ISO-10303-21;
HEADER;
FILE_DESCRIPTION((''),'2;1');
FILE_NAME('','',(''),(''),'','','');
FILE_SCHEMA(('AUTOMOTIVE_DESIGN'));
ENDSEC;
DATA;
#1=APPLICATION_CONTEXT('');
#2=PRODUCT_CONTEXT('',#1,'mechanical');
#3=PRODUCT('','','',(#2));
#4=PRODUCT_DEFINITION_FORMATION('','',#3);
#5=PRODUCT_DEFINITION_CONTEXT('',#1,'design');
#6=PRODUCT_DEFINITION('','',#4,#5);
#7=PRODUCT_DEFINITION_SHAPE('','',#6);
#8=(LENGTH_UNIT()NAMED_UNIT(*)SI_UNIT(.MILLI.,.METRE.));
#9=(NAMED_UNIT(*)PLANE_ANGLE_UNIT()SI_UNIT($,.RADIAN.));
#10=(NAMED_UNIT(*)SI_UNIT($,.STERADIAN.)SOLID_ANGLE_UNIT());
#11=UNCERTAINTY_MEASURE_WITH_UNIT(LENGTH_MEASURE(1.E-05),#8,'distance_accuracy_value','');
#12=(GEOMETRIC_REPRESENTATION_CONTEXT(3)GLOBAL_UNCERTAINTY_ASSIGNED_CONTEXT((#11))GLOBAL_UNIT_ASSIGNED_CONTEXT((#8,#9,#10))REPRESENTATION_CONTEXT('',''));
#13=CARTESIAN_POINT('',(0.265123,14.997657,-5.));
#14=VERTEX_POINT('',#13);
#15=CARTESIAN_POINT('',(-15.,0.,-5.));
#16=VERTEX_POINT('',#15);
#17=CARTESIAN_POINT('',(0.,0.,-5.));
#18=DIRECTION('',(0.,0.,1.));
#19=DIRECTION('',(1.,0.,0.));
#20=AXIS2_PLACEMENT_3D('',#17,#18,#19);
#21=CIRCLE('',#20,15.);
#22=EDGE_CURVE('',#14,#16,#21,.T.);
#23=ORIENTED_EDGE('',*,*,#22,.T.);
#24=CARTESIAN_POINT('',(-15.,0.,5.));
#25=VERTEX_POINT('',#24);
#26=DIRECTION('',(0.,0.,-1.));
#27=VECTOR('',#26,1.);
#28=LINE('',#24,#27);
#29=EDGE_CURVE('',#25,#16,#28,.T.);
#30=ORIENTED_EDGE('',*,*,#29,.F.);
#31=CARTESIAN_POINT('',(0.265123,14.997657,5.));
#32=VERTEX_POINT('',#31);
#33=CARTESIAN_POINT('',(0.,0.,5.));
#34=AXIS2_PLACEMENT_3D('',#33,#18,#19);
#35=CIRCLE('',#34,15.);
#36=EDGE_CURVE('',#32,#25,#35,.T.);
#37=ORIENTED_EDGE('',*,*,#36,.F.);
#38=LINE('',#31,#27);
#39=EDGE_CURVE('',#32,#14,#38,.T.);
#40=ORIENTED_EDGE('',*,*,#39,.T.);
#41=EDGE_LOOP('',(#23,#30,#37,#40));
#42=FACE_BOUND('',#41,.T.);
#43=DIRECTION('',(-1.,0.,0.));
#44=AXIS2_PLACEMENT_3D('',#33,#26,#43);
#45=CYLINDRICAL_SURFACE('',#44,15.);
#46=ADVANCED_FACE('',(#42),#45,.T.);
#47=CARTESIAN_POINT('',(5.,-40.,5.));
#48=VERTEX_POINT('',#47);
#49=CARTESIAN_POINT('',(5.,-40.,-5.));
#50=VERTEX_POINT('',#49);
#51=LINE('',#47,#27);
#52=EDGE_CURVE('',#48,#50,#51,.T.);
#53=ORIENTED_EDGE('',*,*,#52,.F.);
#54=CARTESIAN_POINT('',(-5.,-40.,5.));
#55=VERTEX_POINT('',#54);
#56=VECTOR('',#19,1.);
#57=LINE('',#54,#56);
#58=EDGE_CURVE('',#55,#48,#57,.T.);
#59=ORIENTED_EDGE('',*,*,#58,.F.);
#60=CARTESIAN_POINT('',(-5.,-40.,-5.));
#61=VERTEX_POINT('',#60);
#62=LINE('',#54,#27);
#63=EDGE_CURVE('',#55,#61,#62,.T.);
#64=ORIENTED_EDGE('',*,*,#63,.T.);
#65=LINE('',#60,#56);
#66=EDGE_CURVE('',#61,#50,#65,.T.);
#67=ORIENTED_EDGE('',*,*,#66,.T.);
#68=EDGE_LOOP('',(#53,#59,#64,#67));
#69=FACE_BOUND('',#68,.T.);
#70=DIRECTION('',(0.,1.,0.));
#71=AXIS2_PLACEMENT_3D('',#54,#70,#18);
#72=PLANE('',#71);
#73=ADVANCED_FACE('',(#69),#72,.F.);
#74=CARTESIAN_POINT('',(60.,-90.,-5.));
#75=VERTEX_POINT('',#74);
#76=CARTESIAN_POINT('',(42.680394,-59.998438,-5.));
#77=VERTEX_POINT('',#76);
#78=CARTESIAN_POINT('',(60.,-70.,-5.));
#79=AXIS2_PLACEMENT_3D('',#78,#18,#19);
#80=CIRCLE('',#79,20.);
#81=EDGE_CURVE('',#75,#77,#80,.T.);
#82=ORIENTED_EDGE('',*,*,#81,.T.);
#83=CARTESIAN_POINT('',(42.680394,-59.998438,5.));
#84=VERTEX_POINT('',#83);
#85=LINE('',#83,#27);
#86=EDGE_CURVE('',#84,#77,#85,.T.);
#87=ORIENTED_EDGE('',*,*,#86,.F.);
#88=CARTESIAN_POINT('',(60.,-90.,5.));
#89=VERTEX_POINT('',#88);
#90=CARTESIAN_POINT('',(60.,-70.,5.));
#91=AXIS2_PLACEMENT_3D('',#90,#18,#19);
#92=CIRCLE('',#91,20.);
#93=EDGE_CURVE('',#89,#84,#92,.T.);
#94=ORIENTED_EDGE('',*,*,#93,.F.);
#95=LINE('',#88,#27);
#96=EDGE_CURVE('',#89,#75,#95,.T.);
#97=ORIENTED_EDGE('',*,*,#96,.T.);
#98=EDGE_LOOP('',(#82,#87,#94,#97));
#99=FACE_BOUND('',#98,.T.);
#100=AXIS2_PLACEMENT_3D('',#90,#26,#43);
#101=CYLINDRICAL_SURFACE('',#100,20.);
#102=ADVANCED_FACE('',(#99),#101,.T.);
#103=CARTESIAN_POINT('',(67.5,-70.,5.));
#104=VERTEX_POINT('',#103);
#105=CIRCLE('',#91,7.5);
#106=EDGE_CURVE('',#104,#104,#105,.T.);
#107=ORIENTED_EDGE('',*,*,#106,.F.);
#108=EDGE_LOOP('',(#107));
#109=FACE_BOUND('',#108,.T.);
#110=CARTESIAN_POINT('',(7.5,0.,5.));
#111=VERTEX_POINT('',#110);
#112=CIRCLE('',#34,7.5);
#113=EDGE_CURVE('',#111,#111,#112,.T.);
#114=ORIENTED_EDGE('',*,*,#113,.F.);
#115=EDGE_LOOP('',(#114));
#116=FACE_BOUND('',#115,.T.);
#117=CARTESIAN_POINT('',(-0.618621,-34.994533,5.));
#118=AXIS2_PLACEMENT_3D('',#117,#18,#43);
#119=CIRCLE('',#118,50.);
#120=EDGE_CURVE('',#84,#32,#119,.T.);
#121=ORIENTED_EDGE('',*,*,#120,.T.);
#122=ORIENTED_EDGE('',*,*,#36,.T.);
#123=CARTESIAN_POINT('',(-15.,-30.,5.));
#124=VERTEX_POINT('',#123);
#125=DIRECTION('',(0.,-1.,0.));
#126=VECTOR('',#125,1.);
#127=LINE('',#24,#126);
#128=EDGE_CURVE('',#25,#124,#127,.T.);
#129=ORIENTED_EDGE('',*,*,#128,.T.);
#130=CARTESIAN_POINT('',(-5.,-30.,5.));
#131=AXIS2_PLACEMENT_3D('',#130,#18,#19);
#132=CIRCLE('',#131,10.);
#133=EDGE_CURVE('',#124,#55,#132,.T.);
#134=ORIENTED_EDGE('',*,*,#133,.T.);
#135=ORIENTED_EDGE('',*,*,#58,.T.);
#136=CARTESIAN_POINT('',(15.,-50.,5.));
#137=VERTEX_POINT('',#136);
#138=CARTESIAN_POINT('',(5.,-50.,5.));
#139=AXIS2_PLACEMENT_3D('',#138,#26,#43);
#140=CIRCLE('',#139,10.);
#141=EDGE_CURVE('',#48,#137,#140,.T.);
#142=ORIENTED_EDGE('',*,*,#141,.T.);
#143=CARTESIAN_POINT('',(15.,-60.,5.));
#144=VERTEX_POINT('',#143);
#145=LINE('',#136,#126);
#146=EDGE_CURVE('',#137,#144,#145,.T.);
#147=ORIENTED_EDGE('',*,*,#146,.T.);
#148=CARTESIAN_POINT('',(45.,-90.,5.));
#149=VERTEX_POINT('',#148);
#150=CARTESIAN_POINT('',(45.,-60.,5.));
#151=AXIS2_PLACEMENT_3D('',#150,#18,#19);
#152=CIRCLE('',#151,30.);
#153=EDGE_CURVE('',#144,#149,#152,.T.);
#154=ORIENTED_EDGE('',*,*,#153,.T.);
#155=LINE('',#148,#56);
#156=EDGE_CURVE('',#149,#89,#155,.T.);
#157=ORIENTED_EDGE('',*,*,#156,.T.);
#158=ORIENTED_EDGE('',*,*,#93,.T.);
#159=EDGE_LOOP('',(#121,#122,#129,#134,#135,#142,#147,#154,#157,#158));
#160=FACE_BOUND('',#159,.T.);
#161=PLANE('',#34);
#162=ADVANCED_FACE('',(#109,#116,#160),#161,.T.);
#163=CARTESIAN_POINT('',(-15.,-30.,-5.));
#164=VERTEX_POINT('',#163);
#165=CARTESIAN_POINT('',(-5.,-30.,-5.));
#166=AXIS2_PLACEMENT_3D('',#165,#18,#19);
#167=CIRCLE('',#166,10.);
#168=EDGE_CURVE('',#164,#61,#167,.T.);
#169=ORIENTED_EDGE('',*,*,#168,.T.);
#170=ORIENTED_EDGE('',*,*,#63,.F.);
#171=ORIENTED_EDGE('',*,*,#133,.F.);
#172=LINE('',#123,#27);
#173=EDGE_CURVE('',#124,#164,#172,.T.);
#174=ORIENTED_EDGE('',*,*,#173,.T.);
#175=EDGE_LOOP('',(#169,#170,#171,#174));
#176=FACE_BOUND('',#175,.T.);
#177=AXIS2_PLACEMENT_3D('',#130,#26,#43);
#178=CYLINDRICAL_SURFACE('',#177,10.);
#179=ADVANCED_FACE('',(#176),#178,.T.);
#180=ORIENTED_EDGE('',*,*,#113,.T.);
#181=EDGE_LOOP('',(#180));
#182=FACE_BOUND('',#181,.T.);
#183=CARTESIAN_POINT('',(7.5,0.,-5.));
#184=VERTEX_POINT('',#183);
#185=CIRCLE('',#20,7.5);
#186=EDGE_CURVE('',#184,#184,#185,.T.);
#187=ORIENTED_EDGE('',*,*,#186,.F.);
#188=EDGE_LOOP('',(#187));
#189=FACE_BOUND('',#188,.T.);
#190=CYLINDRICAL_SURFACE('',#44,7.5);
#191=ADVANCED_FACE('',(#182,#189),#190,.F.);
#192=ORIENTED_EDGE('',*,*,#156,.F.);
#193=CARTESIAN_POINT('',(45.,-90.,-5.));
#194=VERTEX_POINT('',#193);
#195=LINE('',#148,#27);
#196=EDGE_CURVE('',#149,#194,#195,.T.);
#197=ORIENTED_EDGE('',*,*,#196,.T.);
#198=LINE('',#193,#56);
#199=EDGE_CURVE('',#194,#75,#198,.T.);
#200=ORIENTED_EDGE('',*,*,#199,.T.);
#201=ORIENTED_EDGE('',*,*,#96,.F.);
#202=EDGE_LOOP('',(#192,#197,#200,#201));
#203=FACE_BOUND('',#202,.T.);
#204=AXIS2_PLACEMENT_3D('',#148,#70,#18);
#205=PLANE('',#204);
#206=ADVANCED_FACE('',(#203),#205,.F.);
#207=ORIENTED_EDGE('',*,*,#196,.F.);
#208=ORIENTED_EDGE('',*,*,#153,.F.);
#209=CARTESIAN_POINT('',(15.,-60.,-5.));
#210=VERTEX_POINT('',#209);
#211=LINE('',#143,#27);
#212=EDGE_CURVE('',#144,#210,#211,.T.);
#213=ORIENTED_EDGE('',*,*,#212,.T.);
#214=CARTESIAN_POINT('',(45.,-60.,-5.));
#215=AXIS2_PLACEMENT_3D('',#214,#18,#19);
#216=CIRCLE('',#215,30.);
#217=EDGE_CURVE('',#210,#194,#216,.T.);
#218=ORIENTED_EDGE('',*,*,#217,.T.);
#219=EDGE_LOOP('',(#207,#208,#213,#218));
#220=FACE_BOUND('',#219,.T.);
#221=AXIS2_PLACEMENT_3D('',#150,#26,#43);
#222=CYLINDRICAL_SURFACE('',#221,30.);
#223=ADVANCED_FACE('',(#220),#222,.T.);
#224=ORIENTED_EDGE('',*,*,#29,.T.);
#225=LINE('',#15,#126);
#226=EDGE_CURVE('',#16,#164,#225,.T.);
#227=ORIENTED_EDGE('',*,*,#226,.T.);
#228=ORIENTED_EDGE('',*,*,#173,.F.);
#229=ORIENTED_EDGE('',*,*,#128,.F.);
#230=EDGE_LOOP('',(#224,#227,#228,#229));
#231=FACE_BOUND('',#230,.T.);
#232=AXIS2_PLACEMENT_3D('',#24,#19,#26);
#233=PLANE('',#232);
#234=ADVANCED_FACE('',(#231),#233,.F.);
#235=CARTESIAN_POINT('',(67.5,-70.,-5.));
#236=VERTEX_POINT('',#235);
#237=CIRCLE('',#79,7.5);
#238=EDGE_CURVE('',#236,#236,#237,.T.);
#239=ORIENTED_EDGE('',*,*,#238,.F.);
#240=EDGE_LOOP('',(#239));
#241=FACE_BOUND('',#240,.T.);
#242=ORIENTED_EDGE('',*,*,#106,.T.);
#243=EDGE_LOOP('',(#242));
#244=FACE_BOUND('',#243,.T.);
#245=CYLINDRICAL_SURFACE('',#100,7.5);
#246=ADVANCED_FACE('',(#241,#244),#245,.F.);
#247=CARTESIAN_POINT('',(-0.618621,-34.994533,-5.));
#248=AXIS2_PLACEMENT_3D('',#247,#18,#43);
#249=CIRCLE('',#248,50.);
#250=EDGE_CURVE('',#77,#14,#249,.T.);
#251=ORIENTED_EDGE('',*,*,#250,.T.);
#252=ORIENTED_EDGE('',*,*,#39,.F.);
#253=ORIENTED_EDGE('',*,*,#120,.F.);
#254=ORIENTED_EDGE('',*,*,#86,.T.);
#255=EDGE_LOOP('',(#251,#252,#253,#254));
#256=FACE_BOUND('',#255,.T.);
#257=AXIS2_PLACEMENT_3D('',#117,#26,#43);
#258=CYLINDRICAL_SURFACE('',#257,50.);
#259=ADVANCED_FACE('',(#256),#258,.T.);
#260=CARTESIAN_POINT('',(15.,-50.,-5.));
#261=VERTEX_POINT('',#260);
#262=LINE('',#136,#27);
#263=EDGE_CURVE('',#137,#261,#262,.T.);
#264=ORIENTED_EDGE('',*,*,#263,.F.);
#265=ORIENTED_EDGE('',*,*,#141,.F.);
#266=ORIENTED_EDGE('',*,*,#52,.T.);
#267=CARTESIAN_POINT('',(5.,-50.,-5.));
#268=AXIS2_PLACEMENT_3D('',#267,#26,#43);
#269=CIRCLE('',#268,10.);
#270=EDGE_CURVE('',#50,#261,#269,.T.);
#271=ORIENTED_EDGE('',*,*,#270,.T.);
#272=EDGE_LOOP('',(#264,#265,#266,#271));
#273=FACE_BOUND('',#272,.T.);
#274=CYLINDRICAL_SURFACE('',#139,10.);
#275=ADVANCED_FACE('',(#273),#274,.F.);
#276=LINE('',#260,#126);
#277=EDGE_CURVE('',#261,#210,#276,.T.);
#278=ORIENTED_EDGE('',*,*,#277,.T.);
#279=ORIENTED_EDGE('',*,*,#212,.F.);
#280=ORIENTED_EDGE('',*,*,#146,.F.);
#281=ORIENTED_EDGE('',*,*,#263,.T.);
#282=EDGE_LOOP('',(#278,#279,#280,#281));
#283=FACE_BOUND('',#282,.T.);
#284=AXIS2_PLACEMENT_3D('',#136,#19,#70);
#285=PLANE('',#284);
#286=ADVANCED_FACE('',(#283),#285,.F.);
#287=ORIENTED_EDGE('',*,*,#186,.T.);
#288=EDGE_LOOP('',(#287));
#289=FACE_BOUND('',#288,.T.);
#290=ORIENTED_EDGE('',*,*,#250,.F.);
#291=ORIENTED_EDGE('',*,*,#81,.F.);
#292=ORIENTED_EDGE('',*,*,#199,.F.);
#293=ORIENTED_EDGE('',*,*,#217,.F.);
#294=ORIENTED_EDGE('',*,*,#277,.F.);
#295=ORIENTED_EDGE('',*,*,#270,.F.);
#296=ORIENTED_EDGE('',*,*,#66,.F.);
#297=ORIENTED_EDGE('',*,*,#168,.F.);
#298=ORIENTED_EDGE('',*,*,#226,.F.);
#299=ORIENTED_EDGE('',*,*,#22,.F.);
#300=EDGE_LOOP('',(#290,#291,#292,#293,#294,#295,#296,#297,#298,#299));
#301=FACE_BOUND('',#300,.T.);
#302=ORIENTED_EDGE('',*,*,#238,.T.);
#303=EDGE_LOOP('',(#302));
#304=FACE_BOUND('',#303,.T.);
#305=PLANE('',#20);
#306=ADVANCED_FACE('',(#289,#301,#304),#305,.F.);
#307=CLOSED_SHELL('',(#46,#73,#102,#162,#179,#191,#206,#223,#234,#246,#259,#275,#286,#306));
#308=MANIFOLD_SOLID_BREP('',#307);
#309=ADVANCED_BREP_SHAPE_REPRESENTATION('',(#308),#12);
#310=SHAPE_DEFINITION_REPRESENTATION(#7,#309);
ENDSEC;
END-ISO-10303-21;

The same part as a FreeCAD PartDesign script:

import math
import FreeCAD as App
import Part
import Sketcher

V = App.Vector

doc = App.newDocument("Part")
body = doc.addObject("PartDesign::Body", "Body")

sketch1 = doc.addObject("Sketcher::SketchObject", "Sketch")
body.addObject(sketch1)
sketch1.AttachmentSupport = (doc.XY_Plane, [""])
sketch1.MapMode = "FlatFace"
sketch1.addGeometry([
    Part.LineSegment(V(-15, 0, 0), V(-15, -30, 0)),
    Part.ArcOfCircle(Part.Circle(V(-5, -30, 0), V(0, 0, 1), 10), math.radians(180), math.radians(270)),
    Part.LineSegment(V(-5, -40, 0), V(5, -40, 0)),
    Part.ArcOfCircle(Part.Circle(V(5, -50, 0), V(0, 0, 1), 10), math.radians(0), math.radians(90)),
    Part.LineSegment(V(15, -50, 0), V(15, -60, 0)),
    Part.ArcOfCircle(Part.Circle(V(45, -60, 0), V(0, 0, 1), 30), math.radians(180), math.radians(270)),
    Part.LineSegment(V(45, -90, 0), V(60, -90, 0)),
    Part.ArcOfCircle(Part.Circle(V(60, -70, 0), V(0, 0, 1), 20), math.radians(-90), math.radians(150)),
    Part.ArcOfCircle(Part.Circle(V(-1, -35, 0), V(0, 0, 1), 50), math.radians(-30), math.radians(89)),
    Part.ArcOfCircle(Part.Circle(V(0, 0, 0), V(0, 0, 1), 15), math.radians(89), math.radians(180)),
    Part.Circle(V(60, -70, 0), V(0, 0, 1), 8),
    Part.Circle(V(0, 0, 0), V(0, 0, 1), 8),
], False)
sketch1.addConstraint([
    Sketcher.Constraint("Tangent", 0, 2, 1, 1),
    Sketcher.Constraint("Tangent", 1, 2, 2, 1),
    Sketcher.Constraint("Tangent", 2, 2, 3, 2),
    Sketcher.Constraint("Tangent", 3, 1, 4, 1),
    Sketcher.Constraint("Tangent", 4, 2, 5, 1),
    Sketcher.Constraint("Tangent", 5, 2, 6, 1),
    Sketcher.Constraint("Tangent", 6, 2, 7, 1),
    Sketcher.Constraint("Tangent", 7, 2, 8, 1),
    Sketcher.Constraint("Tangent", 8, 2, 9, 1),
    Sketcher.Constraint("Tangent", 9, 2, 0, 1),
    Sketcher.Constraint("Vertical", 0),
    Sketcher.Constraint("Horizontal", 2),
    Sketcher.Constraint("Vertical", 4),
    Sketcher.Constraint("Horizontal", 6),
    Sketcher.Constraint("Coincident", 9, 3, -1, 1),
    Sketcher.Constraint("Coincident", 11, 3, -1, 1),
    Sketcher.Constraint("Coincident", 10, 3, 7, 3),
    Sketcher.Constraint("Equal", 1, 3),
    Sketcher.Constraint("Equal", 10, 11),
    Sketcher.Constraint("Equal", 2, 4),
    Sketcher.Constraint("Diameter", 10, 15.0),
    Sketcher.Constraint("Radius", 1, 10.0),
    Sketcher.Constraint("Radius", 5, 30.0),
    Sketcher.Constraint("Radius", 7, 20.0),
    Sketcher.Constraint("Radius", 8, 50.0),
    Sketcher.Constraint("Radius", 9, 15.0),
    Sketcher.Constraint("DistanceX", 2, 1, 2, 2, 10.0),
    Sketcher.Constraint("DistanceX", 6, 1, 6, 2, 15.0),
    Sketcher.Constraint("DistanceY", 0, 2, 0, 1, 30.0),
])
pad1 = doc.addObject("PartDesign::Pad", "Pad")
body.addObject(pad1)
pad1.Profile = sketch1
pad1.Length = 10
pad1.Midplane = True

doc.recompute()
